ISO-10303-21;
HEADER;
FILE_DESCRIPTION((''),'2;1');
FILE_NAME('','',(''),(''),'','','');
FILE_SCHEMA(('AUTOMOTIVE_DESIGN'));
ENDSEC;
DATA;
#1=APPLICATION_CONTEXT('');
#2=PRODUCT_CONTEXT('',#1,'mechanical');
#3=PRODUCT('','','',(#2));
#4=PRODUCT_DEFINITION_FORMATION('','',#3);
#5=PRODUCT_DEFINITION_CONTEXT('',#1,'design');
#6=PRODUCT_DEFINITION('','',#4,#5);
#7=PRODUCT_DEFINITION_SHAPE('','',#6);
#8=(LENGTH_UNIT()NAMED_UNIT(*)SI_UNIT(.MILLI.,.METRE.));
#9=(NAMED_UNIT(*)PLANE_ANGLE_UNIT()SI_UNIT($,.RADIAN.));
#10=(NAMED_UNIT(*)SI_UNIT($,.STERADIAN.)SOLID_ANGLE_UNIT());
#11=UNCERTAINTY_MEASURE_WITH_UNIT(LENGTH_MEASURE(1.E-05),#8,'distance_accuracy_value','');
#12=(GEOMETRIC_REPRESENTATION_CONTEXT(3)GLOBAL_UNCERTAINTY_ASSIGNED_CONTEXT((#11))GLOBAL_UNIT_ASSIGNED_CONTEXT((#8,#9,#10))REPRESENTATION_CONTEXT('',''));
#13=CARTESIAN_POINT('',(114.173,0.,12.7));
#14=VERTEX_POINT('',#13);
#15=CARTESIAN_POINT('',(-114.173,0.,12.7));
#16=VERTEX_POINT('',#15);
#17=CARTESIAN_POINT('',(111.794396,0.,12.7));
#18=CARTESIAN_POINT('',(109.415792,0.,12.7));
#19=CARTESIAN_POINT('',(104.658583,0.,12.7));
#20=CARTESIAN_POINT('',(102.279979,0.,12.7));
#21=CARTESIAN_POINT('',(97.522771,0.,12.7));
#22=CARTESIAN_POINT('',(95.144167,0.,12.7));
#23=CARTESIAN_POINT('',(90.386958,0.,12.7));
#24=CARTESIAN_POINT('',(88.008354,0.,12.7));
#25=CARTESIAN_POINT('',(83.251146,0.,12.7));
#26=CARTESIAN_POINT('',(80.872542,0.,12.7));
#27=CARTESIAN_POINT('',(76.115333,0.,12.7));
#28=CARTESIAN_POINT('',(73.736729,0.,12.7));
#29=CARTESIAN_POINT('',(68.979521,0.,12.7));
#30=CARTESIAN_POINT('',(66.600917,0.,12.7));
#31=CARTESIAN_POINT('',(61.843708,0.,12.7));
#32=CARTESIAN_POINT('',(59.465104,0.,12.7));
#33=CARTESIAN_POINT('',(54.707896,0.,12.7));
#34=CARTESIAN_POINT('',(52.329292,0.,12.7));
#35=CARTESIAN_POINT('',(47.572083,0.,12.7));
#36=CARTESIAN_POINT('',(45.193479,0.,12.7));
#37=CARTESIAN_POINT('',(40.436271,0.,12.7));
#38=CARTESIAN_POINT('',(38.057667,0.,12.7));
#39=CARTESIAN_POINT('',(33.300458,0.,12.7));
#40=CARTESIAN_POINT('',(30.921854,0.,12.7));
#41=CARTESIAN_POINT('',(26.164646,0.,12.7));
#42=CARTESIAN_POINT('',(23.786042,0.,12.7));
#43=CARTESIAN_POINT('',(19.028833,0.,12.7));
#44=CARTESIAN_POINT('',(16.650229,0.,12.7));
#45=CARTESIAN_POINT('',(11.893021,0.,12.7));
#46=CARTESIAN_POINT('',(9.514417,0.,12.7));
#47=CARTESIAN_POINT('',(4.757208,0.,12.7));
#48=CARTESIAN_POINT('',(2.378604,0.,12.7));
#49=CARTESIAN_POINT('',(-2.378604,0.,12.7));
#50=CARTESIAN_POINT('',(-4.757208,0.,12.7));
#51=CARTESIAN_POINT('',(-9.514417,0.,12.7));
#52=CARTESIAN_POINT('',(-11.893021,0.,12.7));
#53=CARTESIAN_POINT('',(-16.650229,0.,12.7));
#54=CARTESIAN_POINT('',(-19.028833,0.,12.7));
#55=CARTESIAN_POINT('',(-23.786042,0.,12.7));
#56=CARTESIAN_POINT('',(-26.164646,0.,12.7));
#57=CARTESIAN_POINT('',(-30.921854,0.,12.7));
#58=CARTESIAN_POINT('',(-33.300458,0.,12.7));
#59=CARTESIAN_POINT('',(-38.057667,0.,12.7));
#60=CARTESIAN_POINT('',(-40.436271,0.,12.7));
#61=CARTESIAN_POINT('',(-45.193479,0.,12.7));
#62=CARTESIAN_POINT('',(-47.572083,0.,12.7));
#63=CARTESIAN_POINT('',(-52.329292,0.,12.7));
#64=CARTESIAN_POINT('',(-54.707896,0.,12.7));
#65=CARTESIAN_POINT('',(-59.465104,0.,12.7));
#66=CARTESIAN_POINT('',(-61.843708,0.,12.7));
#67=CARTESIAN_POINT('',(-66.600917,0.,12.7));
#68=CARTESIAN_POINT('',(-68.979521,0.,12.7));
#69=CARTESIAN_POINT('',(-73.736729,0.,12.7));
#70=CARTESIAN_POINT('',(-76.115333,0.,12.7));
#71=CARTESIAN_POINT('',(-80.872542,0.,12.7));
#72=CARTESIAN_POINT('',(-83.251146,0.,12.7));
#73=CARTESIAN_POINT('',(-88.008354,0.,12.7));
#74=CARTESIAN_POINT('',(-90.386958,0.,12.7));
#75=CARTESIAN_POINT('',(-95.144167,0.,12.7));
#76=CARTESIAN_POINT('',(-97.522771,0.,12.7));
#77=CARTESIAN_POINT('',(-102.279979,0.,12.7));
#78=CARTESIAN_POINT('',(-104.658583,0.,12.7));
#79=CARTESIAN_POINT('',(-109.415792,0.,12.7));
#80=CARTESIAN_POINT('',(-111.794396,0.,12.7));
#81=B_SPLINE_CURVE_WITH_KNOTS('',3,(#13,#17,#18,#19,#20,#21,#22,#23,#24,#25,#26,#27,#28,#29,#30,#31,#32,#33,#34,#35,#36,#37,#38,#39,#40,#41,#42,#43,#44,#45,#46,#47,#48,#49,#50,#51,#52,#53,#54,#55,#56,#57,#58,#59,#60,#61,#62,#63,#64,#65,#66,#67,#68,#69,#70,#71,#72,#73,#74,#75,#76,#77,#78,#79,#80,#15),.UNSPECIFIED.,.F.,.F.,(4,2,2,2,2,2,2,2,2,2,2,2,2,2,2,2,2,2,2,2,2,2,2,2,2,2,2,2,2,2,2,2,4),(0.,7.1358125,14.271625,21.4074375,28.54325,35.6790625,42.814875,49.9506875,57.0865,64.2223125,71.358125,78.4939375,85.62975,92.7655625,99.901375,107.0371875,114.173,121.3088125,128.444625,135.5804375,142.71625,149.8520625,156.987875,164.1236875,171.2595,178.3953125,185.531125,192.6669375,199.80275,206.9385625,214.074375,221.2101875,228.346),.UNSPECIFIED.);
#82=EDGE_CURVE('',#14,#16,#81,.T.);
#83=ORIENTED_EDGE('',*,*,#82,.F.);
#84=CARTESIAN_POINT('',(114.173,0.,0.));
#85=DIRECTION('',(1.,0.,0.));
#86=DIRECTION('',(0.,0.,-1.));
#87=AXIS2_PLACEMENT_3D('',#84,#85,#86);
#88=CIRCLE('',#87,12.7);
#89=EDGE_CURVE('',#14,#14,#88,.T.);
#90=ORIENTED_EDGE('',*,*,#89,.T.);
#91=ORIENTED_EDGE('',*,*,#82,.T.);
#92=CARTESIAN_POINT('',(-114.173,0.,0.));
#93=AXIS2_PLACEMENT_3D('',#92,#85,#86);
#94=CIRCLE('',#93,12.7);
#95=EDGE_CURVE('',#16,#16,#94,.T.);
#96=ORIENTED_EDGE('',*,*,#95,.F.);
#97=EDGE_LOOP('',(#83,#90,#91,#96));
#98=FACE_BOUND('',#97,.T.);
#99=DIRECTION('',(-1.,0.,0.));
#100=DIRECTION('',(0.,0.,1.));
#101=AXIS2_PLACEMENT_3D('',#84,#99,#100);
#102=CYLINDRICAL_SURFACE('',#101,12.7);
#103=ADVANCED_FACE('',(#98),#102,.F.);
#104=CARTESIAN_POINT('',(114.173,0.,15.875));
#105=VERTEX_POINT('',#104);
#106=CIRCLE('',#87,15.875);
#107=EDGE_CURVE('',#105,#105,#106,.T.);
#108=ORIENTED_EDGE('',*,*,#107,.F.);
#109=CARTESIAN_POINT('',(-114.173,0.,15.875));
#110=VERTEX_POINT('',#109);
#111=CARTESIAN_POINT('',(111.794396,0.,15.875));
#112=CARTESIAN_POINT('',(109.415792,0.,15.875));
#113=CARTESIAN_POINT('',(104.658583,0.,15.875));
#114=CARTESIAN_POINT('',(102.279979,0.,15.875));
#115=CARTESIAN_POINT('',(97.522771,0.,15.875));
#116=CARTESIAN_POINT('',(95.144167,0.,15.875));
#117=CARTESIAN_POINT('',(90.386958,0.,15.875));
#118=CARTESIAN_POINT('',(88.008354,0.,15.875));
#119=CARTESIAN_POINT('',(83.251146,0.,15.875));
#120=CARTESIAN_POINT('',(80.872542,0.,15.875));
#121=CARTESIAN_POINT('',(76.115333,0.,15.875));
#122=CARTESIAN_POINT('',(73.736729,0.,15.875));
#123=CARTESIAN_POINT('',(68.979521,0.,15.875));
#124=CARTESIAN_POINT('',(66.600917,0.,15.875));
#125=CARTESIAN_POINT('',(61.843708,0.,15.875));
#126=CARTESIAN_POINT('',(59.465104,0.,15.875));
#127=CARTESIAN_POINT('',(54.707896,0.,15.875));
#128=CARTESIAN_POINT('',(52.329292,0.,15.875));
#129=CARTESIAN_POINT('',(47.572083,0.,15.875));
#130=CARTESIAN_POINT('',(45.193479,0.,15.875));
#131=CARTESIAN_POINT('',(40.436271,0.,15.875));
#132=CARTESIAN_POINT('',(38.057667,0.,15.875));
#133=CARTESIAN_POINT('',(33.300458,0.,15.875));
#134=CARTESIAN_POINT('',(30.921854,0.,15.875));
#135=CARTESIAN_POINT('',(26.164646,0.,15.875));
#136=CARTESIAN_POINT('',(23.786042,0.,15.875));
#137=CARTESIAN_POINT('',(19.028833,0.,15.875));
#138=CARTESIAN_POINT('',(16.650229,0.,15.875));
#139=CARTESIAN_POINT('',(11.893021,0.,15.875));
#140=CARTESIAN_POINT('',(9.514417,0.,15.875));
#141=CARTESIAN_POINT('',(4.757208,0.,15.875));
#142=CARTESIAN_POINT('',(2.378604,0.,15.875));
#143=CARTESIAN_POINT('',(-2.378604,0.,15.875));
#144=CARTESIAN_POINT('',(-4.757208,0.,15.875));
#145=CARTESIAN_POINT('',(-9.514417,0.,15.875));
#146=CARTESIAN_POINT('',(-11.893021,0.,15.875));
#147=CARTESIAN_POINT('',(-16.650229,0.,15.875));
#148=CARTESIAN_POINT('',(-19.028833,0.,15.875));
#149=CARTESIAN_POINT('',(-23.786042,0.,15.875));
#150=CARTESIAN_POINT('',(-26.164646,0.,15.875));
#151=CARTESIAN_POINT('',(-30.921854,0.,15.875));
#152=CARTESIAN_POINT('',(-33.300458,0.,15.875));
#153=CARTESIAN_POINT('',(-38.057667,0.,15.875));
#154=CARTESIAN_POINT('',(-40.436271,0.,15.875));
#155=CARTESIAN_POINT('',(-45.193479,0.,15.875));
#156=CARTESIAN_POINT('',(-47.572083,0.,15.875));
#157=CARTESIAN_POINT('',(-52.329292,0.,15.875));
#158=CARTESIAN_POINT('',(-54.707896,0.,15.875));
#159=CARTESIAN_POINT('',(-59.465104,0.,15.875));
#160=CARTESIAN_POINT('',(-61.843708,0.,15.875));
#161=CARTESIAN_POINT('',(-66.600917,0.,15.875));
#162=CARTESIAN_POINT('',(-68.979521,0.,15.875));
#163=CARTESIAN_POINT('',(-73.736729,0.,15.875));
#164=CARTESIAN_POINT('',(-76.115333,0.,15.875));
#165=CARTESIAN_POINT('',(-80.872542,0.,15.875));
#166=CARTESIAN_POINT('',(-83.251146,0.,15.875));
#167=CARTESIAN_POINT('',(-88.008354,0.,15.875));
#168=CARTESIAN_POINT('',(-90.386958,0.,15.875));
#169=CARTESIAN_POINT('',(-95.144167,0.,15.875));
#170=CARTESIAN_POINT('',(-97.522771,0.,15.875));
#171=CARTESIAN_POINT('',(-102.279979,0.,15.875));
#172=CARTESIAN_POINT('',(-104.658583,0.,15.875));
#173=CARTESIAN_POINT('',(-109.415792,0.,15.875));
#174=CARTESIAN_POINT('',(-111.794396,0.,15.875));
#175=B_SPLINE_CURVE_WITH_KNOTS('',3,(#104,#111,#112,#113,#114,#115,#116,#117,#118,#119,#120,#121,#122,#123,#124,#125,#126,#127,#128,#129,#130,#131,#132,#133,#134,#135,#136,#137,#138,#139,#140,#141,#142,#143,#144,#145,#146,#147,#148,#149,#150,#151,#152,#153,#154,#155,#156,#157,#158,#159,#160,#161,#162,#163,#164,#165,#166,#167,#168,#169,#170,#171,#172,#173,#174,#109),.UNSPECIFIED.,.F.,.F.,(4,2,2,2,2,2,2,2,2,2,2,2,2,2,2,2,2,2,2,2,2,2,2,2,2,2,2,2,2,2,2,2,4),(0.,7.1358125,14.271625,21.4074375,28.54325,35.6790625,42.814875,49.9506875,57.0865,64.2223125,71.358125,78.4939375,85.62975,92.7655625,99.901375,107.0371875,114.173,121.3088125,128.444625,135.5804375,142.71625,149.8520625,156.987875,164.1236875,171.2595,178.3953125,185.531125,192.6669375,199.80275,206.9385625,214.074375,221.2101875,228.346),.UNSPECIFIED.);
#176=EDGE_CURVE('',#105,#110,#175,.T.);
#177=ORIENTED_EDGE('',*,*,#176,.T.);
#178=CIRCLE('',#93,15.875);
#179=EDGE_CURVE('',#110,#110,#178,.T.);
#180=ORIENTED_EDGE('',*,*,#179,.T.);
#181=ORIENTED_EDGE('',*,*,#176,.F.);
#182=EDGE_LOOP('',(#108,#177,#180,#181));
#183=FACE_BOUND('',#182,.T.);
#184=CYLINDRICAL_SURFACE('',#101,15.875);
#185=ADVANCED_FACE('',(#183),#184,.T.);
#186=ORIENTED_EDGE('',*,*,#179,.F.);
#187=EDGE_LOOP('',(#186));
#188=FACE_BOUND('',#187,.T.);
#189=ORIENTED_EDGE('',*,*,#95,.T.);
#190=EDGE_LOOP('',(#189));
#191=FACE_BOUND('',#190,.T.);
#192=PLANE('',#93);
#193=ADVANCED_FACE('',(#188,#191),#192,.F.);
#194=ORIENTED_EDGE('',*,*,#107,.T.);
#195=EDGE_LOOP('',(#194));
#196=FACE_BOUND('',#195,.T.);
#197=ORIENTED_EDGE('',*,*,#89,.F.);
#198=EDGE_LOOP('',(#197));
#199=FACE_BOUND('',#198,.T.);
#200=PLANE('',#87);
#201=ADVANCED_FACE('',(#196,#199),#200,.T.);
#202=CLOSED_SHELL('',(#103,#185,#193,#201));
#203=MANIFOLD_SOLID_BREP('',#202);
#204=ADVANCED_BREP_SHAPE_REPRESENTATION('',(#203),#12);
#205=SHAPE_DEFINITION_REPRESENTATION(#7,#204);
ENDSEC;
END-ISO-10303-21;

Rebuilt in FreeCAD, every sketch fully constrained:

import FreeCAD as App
import Part
import Sketcher
Q = App.Units.Quantity

doc = App.newDocument("Part")
body = doc.addObject("PartDesign::Body", "Body")

# Sketch on YZ plane
sketch1 = body.newObject("Sketcher::SketchObject", "Sketch")
sketch1.AttachmentSupport = (doc.getObject("YZ_Plane"), [""])
sketch1.MapMode = "FlatFace"
sketch1.addGeometry(Part.Circle(App.Vector(0, 0, 0), App.Vector(0, 0, 1), 16), False)
sketch1.addGeometry(Part.Circle(App.Vector(0, 0, 0), App.Vector(0, 0, 1), 13), False)
sketch1.addConstraint(Sketcher.Constraint("Coincident", 0, 3, -1, 1))
sketch1.addConstraint(Sketcher.Constraint("Coincident", 1, 3, -1, 1))
sketch1.addConstraint(Sketcher.Constraint("Diameter", 1, Q("1 in")))
sketch1.addConstraint(Sketcher.Constraint("Diameter", 0, Q("1.25 in")))
pad1 = body.newObject("PartDesign::Pad", "Pad")
pad1.Profile = sketch1
pad1.Length = Q("8.99 in")
pad1.Midplane = True

doc.recompute()
